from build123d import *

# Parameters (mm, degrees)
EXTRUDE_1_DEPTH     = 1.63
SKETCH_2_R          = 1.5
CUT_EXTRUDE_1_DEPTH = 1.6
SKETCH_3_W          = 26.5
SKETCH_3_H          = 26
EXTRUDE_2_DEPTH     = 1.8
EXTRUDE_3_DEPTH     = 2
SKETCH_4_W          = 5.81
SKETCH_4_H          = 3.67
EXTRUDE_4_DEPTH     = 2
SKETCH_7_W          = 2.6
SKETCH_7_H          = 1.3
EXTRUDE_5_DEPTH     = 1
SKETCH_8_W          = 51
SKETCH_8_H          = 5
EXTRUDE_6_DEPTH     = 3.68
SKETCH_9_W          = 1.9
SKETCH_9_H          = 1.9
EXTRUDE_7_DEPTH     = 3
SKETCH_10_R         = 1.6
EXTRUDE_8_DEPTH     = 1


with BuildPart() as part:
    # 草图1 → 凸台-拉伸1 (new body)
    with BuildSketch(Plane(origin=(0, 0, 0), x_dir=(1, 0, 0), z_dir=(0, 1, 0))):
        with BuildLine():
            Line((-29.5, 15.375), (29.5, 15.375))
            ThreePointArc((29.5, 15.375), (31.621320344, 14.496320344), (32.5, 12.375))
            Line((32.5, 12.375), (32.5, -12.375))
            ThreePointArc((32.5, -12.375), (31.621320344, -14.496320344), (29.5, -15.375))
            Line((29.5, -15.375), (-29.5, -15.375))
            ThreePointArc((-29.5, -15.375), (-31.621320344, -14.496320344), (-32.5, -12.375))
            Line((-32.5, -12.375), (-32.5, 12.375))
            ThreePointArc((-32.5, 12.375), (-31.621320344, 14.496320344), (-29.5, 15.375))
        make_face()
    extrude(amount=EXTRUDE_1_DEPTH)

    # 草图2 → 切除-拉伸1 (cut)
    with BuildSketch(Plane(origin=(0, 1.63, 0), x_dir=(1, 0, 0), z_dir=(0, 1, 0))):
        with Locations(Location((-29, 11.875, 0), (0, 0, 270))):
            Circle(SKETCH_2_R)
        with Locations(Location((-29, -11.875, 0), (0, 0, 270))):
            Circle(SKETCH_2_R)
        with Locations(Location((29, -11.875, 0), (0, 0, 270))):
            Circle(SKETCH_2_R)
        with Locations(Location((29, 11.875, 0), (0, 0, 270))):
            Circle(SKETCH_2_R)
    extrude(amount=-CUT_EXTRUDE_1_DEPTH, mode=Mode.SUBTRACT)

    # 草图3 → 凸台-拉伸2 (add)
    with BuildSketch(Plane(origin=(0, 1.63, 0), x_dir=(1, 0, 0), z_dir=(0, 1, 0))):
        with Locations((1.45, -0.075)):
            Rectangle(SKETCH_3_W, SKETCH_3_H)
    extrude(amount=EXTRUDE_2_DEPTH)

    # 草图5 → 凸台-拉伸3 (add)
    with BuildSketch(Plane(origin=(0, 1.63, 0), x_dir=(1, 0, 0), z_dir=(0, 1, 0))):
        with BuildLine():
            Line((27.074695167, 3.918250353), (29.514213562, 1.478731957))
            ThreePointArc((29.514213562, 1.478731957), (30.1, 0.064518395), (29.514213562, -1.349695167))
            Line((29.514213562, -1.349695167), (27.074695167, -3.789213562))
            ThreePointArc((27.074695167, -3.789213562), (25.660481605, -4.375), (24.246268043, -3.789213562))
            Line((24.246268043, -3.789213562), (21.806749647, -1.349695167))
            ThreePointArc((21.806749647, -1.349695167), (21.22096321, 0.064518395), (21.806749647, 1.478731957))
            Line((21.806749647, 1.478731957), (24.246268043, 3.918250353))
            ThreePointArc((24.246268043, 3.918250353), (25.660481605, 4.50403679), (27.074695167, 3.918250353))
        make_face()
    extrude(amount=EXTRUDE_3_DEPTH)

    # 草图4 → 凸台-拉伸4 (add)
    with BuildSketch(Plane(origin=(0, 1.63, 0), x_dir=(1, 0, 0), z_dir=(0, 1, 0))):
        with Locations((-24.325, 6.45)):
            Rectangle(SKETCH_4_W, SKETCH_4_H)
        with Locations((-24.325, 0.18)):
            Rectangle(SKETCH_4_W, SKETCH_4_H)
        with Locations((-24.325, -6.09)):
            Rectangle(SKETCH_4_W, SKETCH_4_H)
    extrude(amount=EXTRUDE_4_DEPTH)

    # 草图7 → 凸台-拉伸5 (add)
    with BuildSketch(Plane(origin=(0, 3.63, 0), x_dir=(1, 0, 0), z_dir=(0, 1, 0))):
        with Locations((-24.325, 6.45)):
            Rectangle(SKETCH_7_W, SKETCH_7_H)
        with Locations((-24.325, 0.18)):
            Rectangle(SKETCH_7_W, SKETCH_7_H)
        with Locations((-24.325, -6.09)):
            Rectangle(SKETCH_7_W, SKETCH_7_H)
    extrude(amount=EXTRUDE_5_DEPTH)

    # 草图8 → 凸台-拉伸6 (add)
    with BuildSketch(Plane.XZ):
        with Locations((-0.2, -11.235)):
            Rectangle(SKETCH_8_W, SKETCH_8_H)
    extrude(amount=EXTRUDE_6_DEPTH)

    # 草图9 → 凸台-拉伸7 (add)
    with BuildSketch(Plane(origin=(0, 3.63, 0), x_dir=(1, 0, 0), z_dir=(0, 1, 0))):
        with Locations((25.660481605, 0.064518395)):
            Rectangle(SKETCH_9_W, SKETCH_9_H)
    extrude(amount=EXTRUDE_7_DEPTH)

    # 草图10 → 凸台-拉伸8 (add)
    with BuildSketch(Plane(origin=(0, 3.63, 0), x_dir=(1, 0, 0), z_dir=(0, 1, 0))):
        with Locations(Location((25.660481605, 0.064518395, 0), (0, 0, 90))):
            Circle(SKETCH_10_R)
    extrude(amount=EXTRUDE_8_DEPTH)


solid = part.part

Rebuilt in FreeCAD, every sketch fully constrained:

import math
import FreeCAD as App
import Part
import Sketcher

V = App.Vector
Q = App.Units.Quantity

doc = App.newDocument("Part")
params = doc.addObject("Spreadsheet::Sheet", "Params")
for row, (alias, value) in enumerate([
    ("sketch1_radius", "3 mm"),
    ("sketch1_width", "59 mm"),
    ("sketch1_height", "24.75 mm"),
    ("pad1_length", "1.63 mm"),
    ("sketch2_diameter", "3 mm"),
    ("pocket1_length", "1.6 mm"),
    ("sketch3_height", "26 mm"),
    ("sketch3_width", "26.5 mm"),
    ("pad2_length", "1.8 mm"),
    ("sketch4_radius", "2 mm"),
    ("sketch4_length", "3.45 mm"),
    ("pad3_length", "2 mm"),
    ("sketch5_width", "5.81 mm"),
    ("sketch5_height", "3.67 mm"),
    ("pad4_length", "2 mm"),
    ("sketch6_width", "2.6 mm"),
    ("sketch6_height", "1.3 mm"),
    ("pad5_length", "1 mm"),
    ("sketch7_width", "51 mm"),
    ("sketch7_height", "5 mm"),
    ("pad6_length", "3.68 mm"),
    ("sketch8_width", "1.9 mm"),
    ("pad7_length", "3 mm"),
    ("sketch9_diameter", "3.2 mm"),
    ("pad8_length", "1 mm"),
], start=1):
    params.set(f"A{row}", alias)
    params.set(f"B{row}", "=" + value)
    params.setAlias(f"B{row}", alias)

body = doc.addObject("PartDesign::Body", "Body")

# Sketch on XZ plane
sketch1 = body.newObject("Sketcher::SketchObject", "Sketch")
sketch1.AttachmentSupport = (doc.getObject("XZ_Plane"), [""])
sketch1.MapMode = "FlatFace"
sketch1.addGeometry(Part.LineSegment(V(29.5, -15.375, 0), V(-29.5, -15.375, 0)), False)
sketch1.addGeometry(Part.ArcOfCircle(Part.Circle(V(-29.5, -12.375, 0), V(0, 0, 1), 3), math.radians(180), math.radians(270)), False)
sketch1.addGeometry(Part.LineSegment(V(-32.5, -12.375, 0), V(-32.5, 12.375, 0)), False)
sketch1.addGeometry(Part.ArcOfCircle(Part.Circle(V(-29.5, 12.375, 0), V(0, 0, 1), 3), math.radians(90), math.radians(180)), False)
sketch1.addGeometry(Part.LineSegment(V(-29.5, 15.375, 0), V(29.5, 15.375, 0)), False)
sketch1.addGeometry(Part.ArcOfCircle(Part.Circle(V(29.5, 12.375, 0), V(0, 0, 1), 3), math.radians(0), math.radians(90)), False)
sketch1.addGeometry(Part.LineSegment(V(32.5, 12.375, 0), V(32.5, -12.375, 0)), False)
sketch1.addGeometry(Part.ArcOfCircle(Part.Circle(V(29.5, -12.375, 0), V(0, 0, 1), 3), math.radians(-90), math.radians(0)), False)
sketch1.addConstraint(Sketcher.Constraint("Tangent", 0, 2, 1, 2))
sketch1.addConstraint(Sketcher.Constraint("Tangent", 1, 1, 2, 1))
sketch1.addConstraint(Sketcher.Constraint("Tangent", 2, 2, 3, 2))
sketch1.addConstraint(Sketcher.Constraint("Tangent", 3, 1, 4, 1))
sketch1.addConstraint(Sketcher.Constraint("Tangent", 4, 2, 5, 2))
sketch1.addConstraint(Sketcher.Constraint("Tangent", 5, 1, 6, 1))
sketch1.addConstraint(Sketcher.Constraint("Tangent", 6, 2, 7, 2))
sketch1.addConstraint(Sketcher.Constraint("Tangent", 7, 1, 0, 1))
sketch1.addConstraint(Sketcher.Constraint("Horizontal", 0))
sketch1.addConstraint(Sketcher.Constraint("Vertical", 2))
sketch1.addConstraint(Sketcher.Constraint("Horizontal", 4))
sketch1.addConstraint(Sketcher.Constraint("Vertical", 6))
sketch1.addConstraint(Sketcher.Constraint("Equal", 1, 3))
sketch1.addConstraint(Sketcher.Constraint("Equal", 3, 5))
sketch1.addConstraint(Sketcher.Constraint("Equal", 5, 7))
sketch1.addConstraint(Sketcher.Constraint("Symmetric", 1, 3, 5, 3, -1, 1))
sketch1.addConstraint(Sketcher.Constraint("Radius", 1, Q("3 mm")))
sketch1.addConstraint(Sketcher.Constraint("DistanceX", 0, 2, 0, 1, Q("59 mm")))
sketch1.addConstraint(Sketcher.Constraint("DistanceY", 2, 1, 2, 2, Q("24.75 mm")))
sketch1.setExpression("Constraints[16]", "Params.sketch1_radius")
sketch1.setExpression("Constraints[17]", "Params.sketch1_width")
sketch1.setExpression("Constraints[18]", "Params.sketch1_height")
pad1 = body.newObject("PartDesign::Pad", "Pad")
pad1.Profile = sketch1
pad1.setExpression("Length", "Params.pad1_length")
pad1.Reversed = True

# Sketch on XZ plane
sketch2 = body.newObject("Sketcher::SketchObject", "Sketch001")
sketch2.AttachmentSupport = (doc.getObject("XZ_Plane"), [""])
sketch2.MapMode = "FlatFace"
sketch2.AttachmentOffset = App.Placement(V(0, 0, -1.63), App.Rotation())
sketch2.addGeometry(Part.Circle(V(-29, -11.875, 0), V(0, 0, 1), 1.5), False)
sketch2.addGeometry(Part.Circle(V(-29, 11.875, 0), V(0, 0, 1), 1.5), False)
sketch2.addGeometry(Part.Circle(V(29, 11.875, 0), V(0, 0, 1), 1.5), False)
sketch2.addGeometry(Part.Circle(V(29, -11.875, 0), V(0, 0, 1), 1.5), False)
sketch2.addConstraint(Sketcher.Constraint("Equal", 0, 1))
sketch2.addConstraint(Sketcher.Constraint("Equal", 1, 2))
sketch2.addConstraint(Sketcher.Constraint("Equal", 2, 3))
sketch2.addConstraint(Sketcher.Constraint("Symmetric", 0, 3, 2, 3, -1, 1))
sketch2.addConstraint(Sketcher.Constraint("Symmetric", 1, 3, 3, 3, -1, 1))
sketch2.addConstraint(Sketcher.Constraint("Symmetric", 1, 3, 2, 3, -2))
sketch2.addConstraint(Sketcher.Constraint("Diameter", 0, Q("3 mm")))
sketch2.addConstraint(Sketcher.Constraint("DistanceX", 0, 3, -1, 1, Q("29 mm")))
sketch2.addConstraint(Sketcher.Constraint("DistanceY", 0, 3, 1, 3, Q("23.75 mm")))
sketch2.setExpression("Constraints[6]", "Params.sketch2_diameter")
pocket1 = body.newObject("PartDesign::Pocket", "Pocket")
pocket1.Profile = sketch2
pocket1.setExpression("Length", "Params.pocket1_length")
pocket1.Reversed = True

# Sketch on XZ plane
sketch3 = body.newObject("Sketcher::SketchObject", "Sketch002")
sketch3.AttachmentSupport = (doc.getObject("XZ_Plane"), [""])
sketch3.MapMode = "FlatFace"
sketch3.AttachmentOffset = App.Placement(V(0, 0, -1.63), App.Rotation())
sketch3.addGeometry(Part.LineSegment(V(-11.8, -12.925, 0), V(-11.8, 13.075, 0)), False)
sketch3.addGeometry(Part.LineSegment(V(-11.8, 13.075, 0), V(14.7, 13.075, 0)), False)
sketch3.addGeometry(Part.LineSegment(V(14.7, 13.075, 0), V(14.7, -12.925, 0)), False)
sketch3.addGeometry(Part.LineSegment(V(14.7, -12.925, 0), V(-11.8, -12.925, 0)), False)
sketch3.addConstraint(Sketcher.Constraint("Coincident", 0, 2, 1, 1))
sketch3.addConstraint(Sketcher.Constraint("Coincident", 1, 2, 2, 1))
sketch3.addConstraint(Sketcher.Constraint("Coincident", 2, 2, 3, 1))
sketch3.addConstraint(Sketcher.Constraint("Coincident", 3, 2, 0, 1))
sketch3.addConstraint(Sketcher.Constraint("Vertical", 0))
sketch3.addConstraint(Sketcher.Constraint("Horizontal", 1))
sketch3.addConstraint(Sketcher.Constraint("Vertical", 2))
sketch3.addConstraint(Sketcher.Constraint("Horizontal", 3))
sketch3.addConstraint(Sketcher.Constraint("DistanceY", 0, 1, 0, 2, Q("26 mm")))
sketch3.addConstraint(Sketcher.Constraint("DistanceX", 1, 1, 1, 2, Q("26.5 mm")))
sketch3.addConstraint(Sketcher.Constraint("DistanceX", 0, 2, -1, 1, Q("11.8 mm")))
sketch3.addConstraint(Sketcher.Constraint("DistanceY", -1, 1, 0, 2, Q("13.075 mm")))
sketch3.setExpression("Constraints[8]", "Params.sketch3_height")
sketch3.setExpression("Constraints[9]", "Params.sketch3_width")
pad2 = body.newObject("PartDesign::Pad", "Pad001")
pad2.Profile = sketch3
pad2.setExpression("Length", "Params.pad2_length")
pad2.Reversed = True

# Sketch on XZ plane
sketch4 = body.newObject("Sketcher::SketchObject", "Sketch003")
sketch4.AttachmentSupport = (doc.getObject("XZ_Plane"), [""])
sketch4.MapMode = "FlatFace"
sketch4.AttachmentOffset = App.Placement(V(0, 0, -1.63), App.Rotation())
sketch4.addGeometry(Part.LineSegment(V(29.514214, -1.478732, 0), V(27.074695, -3.91825, 0)), False)
sketch4.addGeometry(Part.ArcOfCircle(Part.Circle(V(25.660482, -2.504037, 0), V(0, 0, 1), 2), math.radians(-135), math.radians(-45)), False)
sketch4.addGeometry(Part.LineSegment(V(24.246268, -3.91825, 0), V(21.80675, -1.478732, 0)), False)
sketch4.addGeometry(Part.ArcOfCircle(Part.Circle(V(23.220963, -0.064518, 0), V(0, 0, 1), 2), math.radians(135), math.radians(225)), False)
sketch4.addGeometry(Part.LineSegment(V(21.80675, 1.349695, 0), V(24.246268, 3.789214, 0)), False)
sketch4.addGeometry(Part.ArcOfCircle(Part.Circle(V(25.660482, 2.375, 0), V(0, 0, 1), 2), math.radians(45), math.radians(135)), False)
sketch4.addGeometry(Part.LineSegment(V(27.074695, 3.789214, 0), V(29.514214, 1.349695, 0)), False)
sketch4.addGeometry(Part.ArcOfCircle(Part.Circle(V(28.1, -0.064518, 0), V(0, 0, 1), 2), math.radians(-45), math.radians(45)), False)
sketch4.addConstraint(Sketcher.Constraint("Tangent", 0, 2, 1, 2))
sketch4.addConstraint(Sketcher.Constraint("Tangent", 1, 1, 2, 1))
sketch4.addConstraint(Sketcher.Constraint("Tangent", 2, 2, 3, 2))
sketch4.addConstraint(Sketcher.Constraint("Tangent", 3, 1, 4, 1))
sketch4.addConstraint(Sketcher.Constraint("Tangent", 4, 2, 5, 2))
sketch4.addConstraint(Sketcher.Constraint("Tangent", 5, 1, 6, 1))
sketch4.addConstraint(Sketcher.Constraint("Tangent", 6, 2, 7, 2))
sketch4.addConstraint(Sketcher.Constraint("Tangent", 7, 1, 0, 1))
sketch4.addConstraint(Sketcher.Constraint("Equal", 1, 3))
sketch4.addConstraint(Sketcher.Constraint("Equal", 3, 5))
sketch4.addConstraint(Sketcher.Constraint("Equal", 5, 7))
sketch4.addConstraint(Sketcher.Constraint("Perpendicular", 0, 2))
sketch4.addConstraint(Sketcher.Constraint("Perpendicular", 2, 4))
sketch4.addConstraint(Sketcher.Constraint("Perpendicular", 4, 6))
sketch4.addConstraint(Sketcher.Constraint("Horizontal", 3, 3, 7, 3))
sketch4.addConstraint(Sketcher.Constraint("Horizontal", 0, 2, 1, 1))
sketch4.addConstraint(Sketcher.Constraint("Radius", 1, Q("2 mm")))
sketch4.addConstraint(Sketcher.Constraint("DistanceX", -1, 1, 7, 3, Q("28.1 mm")))
sketch4.addConstraint(Sketcher.Constraint("Distance", 0, Q("3.45 mm")))
sketch4.addConstraint(Sketcher.Constraint("DistanceY", -1, 1, 5, 3, Q("2.375 mm")))
sketch4.setExpression("Constraints[16]", "Params.sketch4_radius")
sketch4.setExpression("Constraints[18]", "Params.sketch4_length")
pad3 = body.newObject("PartDesign::Pad", "Pad002")
pad3.Profile = sketch4
pad3.setExpression("Length", "Params.pad3_length")
pad3.Reversed = True

# Sketch on XZ plane
sketch5 = body.newObject("Sketcher::SketchObject", "Sketch004")
sketch5.AttachmentSupport = (doc.getObject("XZ_Plane"), [""])
sketch5.MapMode = "FlatFace"
sketch5.AttachmentOffset = App.Placement(V(0, 0, -1.63), App.Rotation())
sketch5.addGeometry(Part.LineSegment(V(-27.23, -8.285, 0), V(-27.23, -4.615, 0)), False)
sketch5.addGeometry(Part.LineSegment(V(-27.23, -4.615, 0), V(-21.42, -4.615, 0)), False)
sketch5.addGeometry(Part.LineSegment(V(-21.42, -4.615, 0), V(-21.42, -8.285, 0)), False)
sketch5.addGeometry(Part.LineSegment(V(-21.42, -8.285, 0), V(-27.23, -8.285, 0)), False)
sketch5.addGeometry(Part.LineSegment(V(-27.23, -2.015, 0), V(-27.23, 1.655, 0)), False)
sketch5.addGeometry(Part.LineSegment(V(-27.23, 1.655, 0), V(-21.42, 1.655, 0)), False)
sketch5.addGeometry(Part.LineSegment(V(-21.42, 1.655, 0), V(-21.42, -2.015, 0)), False)
sketch5.addGeometry(Part.LineSegment(V(-21.42, -2.015, 0), V(-27.23, -2.015, 0)), False)
sketch5.addGeometry(Part.LineSegment(V(-27.23, 4.255, 0), V(-27.23, 7.925, 0)), False)
sketch5.addGeometry(Part.LineSegment(V(-27.23, 7.925, 0), V(-21.42, 7.925, 0)), False)
sketch5.addGeometry(Part.LineSegment(V(-21.42, 7.925, 0), V(-21.42, 4.255, 0)), False)
sketch5.addGeometry(Part.LineSegment(V(-21.42, 4.255, 0), V(-27.23, 4.255, 0)), False)
sketch5.addConstraint(Sketcher.Constraint("Coincident", 0, 2, 1, 1))
sketch5.addConstraint(Sketcher.Constraint("Coincident", 1, 2, 2, 1))
sketch5.addConstraint(Sketcher.Constraint("Coincident", 2, 2, 3, 1))
sketch5.addConstraint(Sketcher.Constraint("Coincident", 3, 2, 0, 1))
sketch5.addConstraint(Sketcher.Constraint("Coincident", 4, 2, 5, 1))
sketch5.addConstraint(Sketcher.Constraint("Coincident", 5, 2, 6, 1))
sketch5.addConstraint(Sketcher.Constraint("Coincident", 6, 2, 7, 1))
sketch5.addConstraint(Sketcher.Constraint("Coincident", 7, 2, 4, 1))
sketch5.addConstraint(Sketcher.Constraint("Coincident", 8, 2, 9, 1))
sketch5.addConstraint(Sketcher.Constraint("Coincident", 9, 2, 10, 1))
sketch5.addConstraint(Sketcher.Constraint("Coincident", 10, 2, 11, 1))
sketch5.addConstraint(Sketcher.Constraint("Coincident", 11, 2, 8, 1))
sketch5.addConstraint(Sketcher.Constraint("Vertical", 0))
sketch5.addConstraint(Sketcher.Constraint("Horizontal", 1))
sketch5.addConstraint(Sketcher.Constraint("Vertical", 2))
sketch5.addConstraint(Sketcher.Constraint("Horizontal", 3))
sketch5.addConstraint(Sketcher.Constraint("Vertical", 4))
sketch5.addConstraint(Sketcher.Constraint("Horizontal", 5))
sketch5.addConstraint(Sketcher.Constraint("Vertical", 6))
sketch5.addConstraint(Sketcher.Constraint("Horizontal", 7))
sketch5.addConstraint(Sketcher.Constraint("Vertical", 8))
sketch5.addConstraint(Sketcher.Constraint("Horizontal", 9))
sketch5.addConstraint(Sketcher.Constraint("Vertical", 10))
sketch5.addConstraint(Sketcher.Constraint("Horizontal", 11))
sketch5.addConstraint(Sketcher.Constraint("Vertical", 3, 2, 4, 2))
sketch5.addConstraint(Sketcher.Constraint("Vertical", 2, 2, 5, 2))
sketch5.addConstraint(Sketcher.Constraint("Vertical", 7, 2, 8, 2))
sketch5.addConstraint(Sketcher.Constraint("Vertical", 6, 2, 9, 2))
sketch5.addConstraint(Sketcher.Constraint("Equal", 2, 4))
sketch5.addConstraint(Sketcher.Constraint("Equal", 6, 8))
sketch5.addConstraint(Sketcher.Constraint("DistanceX", 1, 1, 1, 2, Q("5.81 mm")))
sketch5.addConstraint(Sketcher.Constraint("DistanceY", 0, 1, 0, 2, Q("3.67 mm")))
sketch5.addConstraint(Sketcher.Constraint("DistanceY", 1, 2, 6, 2, Q("2.6 mm")))
sketch5.addConstraint(Sketcher.Constraint("DistanceY", 5, 2, 10, 2, Q("2.6 mm")))
sketch5.addConstraint(Sketcher.Constraint("DistanceX", 0, 2, -1, 1, Q("27.23 mm")))
sketch5.addConstraint(Sketcher.Constraint("DistanceY", 0, 2, -1, 1, Q("4.615 mm")))
sketch5.setExpression("Constraints[30]", "Params.sketch5_width")
sketch5.setExpression("Constraints[31]", "Params.sketch5_height")
pad4 = body.newObject("PartDesign::Pad", "Pad003")
pad4.Profile = sketch5
pad4.setExpression("Length", "Params.pad4_length")
pad4.Reversed = True

# Sketch on XZ plane
sketch6 = body.newObject("Sketcher::SketchObject", "Sketch005")
sketch6.AttachmentSupport = (doc.getObject("XZ_Plane"), [""])
sketch6.MapMode = "FlatFace"
sketch6.AttachmentOffset = App.Placement(V(0, 0, -3.63), App.Rotation())
sketch6.addGeometry(Part.LineSegment(V(-25.625, -7.1, 0), V(-25.625, -5.8, 0)), False)
sketch6.addGeometry(Part.LineSegment(V(-25.625, -5.8, 0), V(-23.025, -5.8, 0)), False)
sketch6.addGeometry(Part.LineSegment(V(-23.025, -5.8, 0), V(-23.025, -7.1, 0)), False)
sketch6.addGeometry(Part.LineSegment(V(-23.025, -7.1, 0), V(-25.625, -7.1, 0)), False)
sketch6.addGeometry(Part.LineSegment(V(-25.625, -0.83, 0), V(-25.625, 0.47, 0)), False)
sketch6.addGeometry(Part.LineSegment(V(-25.625, 0.47, 0), V(-23.025, 0.47, 0)), False)
sketch6.addGeometry(Part.LineSegment(V(-23.025, 0.47, 0), V(-23.025, -0.83, 0)), False)
sketch6.addGeometry(Part.LineSegment(V(-23.025, -0.83, 0), V(-25.625, -0.83, 0)), False)
sketch6.addGeometry(Part.LineSegment(V(-25.625, 5.44, 0), V(-25.625, 6.74, 0)), False)
sketch6.addGeometry(Part.LineSegment(V(-25.625, 6.74, 0), V(-23.025, 6.74, 0)), False)
sketch6.addGeometry(Part.LineSegment(V(-23.025, 6.74, 0), V(-23.025, 5.44, 0)), False)
sketch6.addGeometry(Part.LineSegment(V(-23.025, 5.44, 0), V(-25.625, 5.44, 0)), False)
sketch6.addConstraint(Sketcher.Constraint("Coincident", 0, 2, 1, 1))
sketch6.addConstraint(Sketcher.Constraint("Coincident", 1, 2, 2, 1))
sketch6.addConstraint(Sketcher.Constraint("Coincident", 2, 2, 3, 1))
sketch6.addConstraint(Sketcher.Constraint("Coincident", 3, 2, 0, 1))
sketch6.addConstraint(Sketcher.Constraint("Coincident", 4, 2, 5, 1))
sketch6.addConstraint(Sketcher.Constraint("Coincident", 5, 2, 6, 1))
sketch6.addConstraint(Sketcher.Constraint("Coincident", 6, 2, 7, 1))
sketch6.addConstraint(Sketcher.Constraint("Coincident", 7, 2, 4, 1))
sketch6.addConstraint(Sketcher.Constraint("Coincident", 8, 2, 9, 1))
sketch6.addConstraint(Sketcher.Constraint("Coincident", 9, 2, 10, 1))
sketch6.addConstraint(Sketcher.Constraint("Coincident", 10, 2, 11, 1))
sketch6.addConstraint(Sketcher.Constraint("Coincident", 11, 2, 8, 1))
sketch6.addConstraint(Sketcher.Constraint("Vertical", 0))
sketch6.addConstraint(Sketcher.Constraint("Horizontal", 1))
sketch6.addConstraint(Sketcher.Constraint("Vertical", 2))
sketch6.addConstraint(Sketcher.Constraint("Horizontal", 3))
sketch6.addConstraint(Sketcher.Constraint("Vertical", 4))
sketch6.addConstraint(Sketcher.Constraint("Horizontal", 5))
sketch6.addConstraint(Sketcher.Constraint("Vertical", 6))
sketch6.addConstraint(Sketcher.Constraint("Horizontal", 7))
sketch6.addConstraint(Sketcher.Constraint("Vertical", 8))
sketch6.addConstraint(Sketcher.Constraint("Horizontal", 9))
sketch6.addConstraint(Sketcher.Constraint("Vertical", 10))
sketch6.addConstraint(Sketcher.Constraint("Horizontal", 11))
sketch6.addConstraint(Sketcher.Constraint("Vertical", 3, 2, 4, 2))
sketch6.addConstraint(Sketcher.Constraint("Vertical", 2, 2, 5, 2))
sketch6.addConstraint(Sketcher.Constraint("Vertical", 7, 2, 8, 2))
sketch6.addConstraint(Sketcher.Constraint("Vertical", 6, 2, 9, 2))
sketch6.addConstraint(Sketcher.Constraint("Equal", 2, 4))
sketch6.addConstraint(Sketcher.Constraint("Equal", 6, 8))
sketch6.addConstraint(Sketcher.Constraint("DistanceX", 1, 1, 1, 2, Q("2.6 mm")))
sketch6.addConstraint(Sketcher.Constraint("DistanceY", 0, 1, 0, 2, Q("1.3 mm")))
sketch6.addConstraint(Sketcher.Constraint("DistanceY", 0, 2, -1, 1, Q("5.8 mm")))
sketch6.addConstraint(Sketcher.Constraint("DistanceY", -1, 1, 4, 2, Q("0.47 mm")))
sketch6.addConstraint(Sketcher.Constraint("DistanceY", -1, 1, 8, 2, Q("6.74 mm")))
sketch6.addConstraint(Sketcher.Constraint("DistanceX", 0, 2, -1, 1, Q("25.625 mm")))
sketch6.setExpression("Constraints[30]", "Params.sketch6_width")
sketch6.setExpression("Constraints[31]", "Params.sketch6_height")
pad5 = body.newObject("PartDesign::Pad", "Pad004")
pad5.Profile = sketch6
pad5.setExpression("Length", "Params.pad5_length")
pad5.Reversed = True

# Sketch on XZ plane
sketch7 = body.newObject("Sketcher::SketchObject", "Sketch006")
sketch7.AttachmentSupport = (doc.getObject("XZ_Plane"), [""])
sketch7.MapMode = "FlatFace"
sketch7.addGeometry(Part.LineSegment(V(-25.7, -8.735, 0), V(-25.7, -13.735, 0)), False)
sketch7.addGeometry(Part.LineSegment(V(-25.7, -13.735, 0), V(25.3, -13.735, 0)), False)
sketch7.addGeometry(Part.LineSegment(V(25.3, -13.735, 0), V(25.3, -8.735, 0)), False)
sketch7.addGeometry(Part.LineSegment(V(25.3, -8.735, 0), V(-25.7, -8.735, 0)), False)
sketch7.addConstraint(Sketcher.Constraint("Coincident", 0, 2, 1, 1))
sketch7.addConstraint(Sketcher.Constraint("Coincident", 1, 2, 2, 1))
sketch7.addConstraint(Sketcher.Constraint("Coincident", 2, 2, 3, 1))
sketch7.addConstraint(Sketcher.Constraint("Coincident", 3, 2, 0, 1))
sketch7.addConstraint(Sketcher.Constraint("Vertical", 0))
sketch7.addConstraint(Sketcher.Constraint("Horizontal", 1))
sketch7.addConstraint(Sketcher.Constraint("Vertical", 2))
sketch7.addConstraint(Sketcher.Constraint("Horizontal", 3))
sketch7.addConstraint(Sketcher.Constraint("DistanceX", 1, 1, 1, 2, Q("51 mm")))
sketch7.addConstraint(Sketcher.Constraint("DistanceY", 0, 2, 0, 1, Q("5 mm")))
sketch7.addConstraint(Sketcher.Constraint("DistanceX", 0, 2, -1, 1, Q("25.7 mm")))
sketch7.addConstraint(Sketcher.Constraint("DistanceY", 0, 2, -1, 1, Q("13.735 mm")))
sketch7.setExpression("Constraints[8]", "Params.sketch7_width")
sketch7.setExpression("Constraints[9]", "Params.sketch7_height")
pad6 = body.newObject("PartDesign::Pad", "Pad005")
pad6.Profile = sketch7
pad6.setExpression("Length", "Params.pad6_length")

# Sketch on XZ plane
sketch8 = body.newObject("Sketcher::SketchObject", "Sketch007")
sketch8.AttachmentSupport = (doc.getObject("XZ_Plane"), [""])
sketch8.MapMode = "FlatFace"
sketch8.AttachmentOffset = App.Placement(V(0, 0, -3.63), App.Rotation())
sketch8.addGeometry(Part.LineSegment(V(24.710482, -1.014518, 0), V(24.710482, 0.885482, 0)), False)
sketch8.addGeometry(Part.LineSegment(V(24.710482, 0.885482, 0), V(26.610482, 0.885482, 0)), False)
sketch8.addGeometry(Part.LineSegment(V(26.610482, 0.885482, 0), V(26.610482, -1.014518, 0)), False)
sketch8.addGeometry(Part.LineSegment(V(26.610482, -1.014518, 0), V(24.710482, -1.014518, 0)), False)
sketch8.addConstraint(Sketcher.Constraint("Coincident", 0, 2, 1, 1))
sketch8.addConstraint(Sketcher.Constraint("Coincident", 1, 2, 2, 1))
sketch8.addConstraint(Sketcher.Constraint("Coincident", 2, 2, 3, 1))
sketch8.addConstraint(Sketcher.Constraint("Coincident", 3, 2, 0, 1))
sketch8.addConstraint(Sketcher.Constraint("Vertical", 0))
sketch8.addConstraint(Sketcher.Constraint("Horizontal", 1))
sketch8.addConstraint(Sketcher.Constraint("Vertical", 2))
sketch8.addConstraint(Sketcher.Constraint("Horizontal", 3))
sketch8.addConstraint(Sketcher.Constraint("Equal", 3, 0))
sketch8.addConstraint(Sketcher.Constraint("DistanceX", 1, 1, 1, 2, Q("1.9 mm")))
sketch8.addConstraint(Sketcher.Constraint("DistanceX", -1, 1, 0, 2, Q("24.710482 mm")))
sketch8.addConstraint(Sketcher.Constraint("DistanceY", -1, 1, 0, 2, Q("0.885482 mm")))
sketch8.setExpression("Constraints[9]", "Params.sketch8_width")
pad7 = body.newObject("PartDesign::Pad", "Pad006")
pad7.Profile = sketch8
pad7.setExpression("Length", "Params.pad7_length")
pad7.Reversed = True

# Sketch on XZ plane
sketch9 = body.newObject("Sketcher::SketchObject", "Sketch008")
sketch9.AttachmentSupport = (doc.getObject("XZ_Plane"), [""])
sketch9.MapMode = "FlatFace"
sketch9.AttachmentOffset = App.Placement(V(0, 0, -3.63), App.Rotation())
sketch9.addGeometry(Part.Circle(V(25.660482, -0.064518, 0), V(0, 0, 1), 1.6), False)
sketch9.addConstraint(Sketcher.Constraint("Diameter", 0, Q("3.2 mm")))
sketch9.addConstraint(Sketcher.Constraint("DistanceX", -1, 1, 0, 3, Q("25.660482 mm")))
sketch9.addConstraint(Sketcher.Constraint("DistanceY", 0, 3, -1, 1, Q("0.064518 mm")))
sketch9.setExpression("Constraints[0]", "Params.sketch9_diameter")
pad8 = body.newObject("PartDesign::Pad", "Pad007")
pad8.Profile = sketch9
pad8.setExpression("Length", "Params.pad8_length")
pad8.Reversed = True

doc.recompute()
